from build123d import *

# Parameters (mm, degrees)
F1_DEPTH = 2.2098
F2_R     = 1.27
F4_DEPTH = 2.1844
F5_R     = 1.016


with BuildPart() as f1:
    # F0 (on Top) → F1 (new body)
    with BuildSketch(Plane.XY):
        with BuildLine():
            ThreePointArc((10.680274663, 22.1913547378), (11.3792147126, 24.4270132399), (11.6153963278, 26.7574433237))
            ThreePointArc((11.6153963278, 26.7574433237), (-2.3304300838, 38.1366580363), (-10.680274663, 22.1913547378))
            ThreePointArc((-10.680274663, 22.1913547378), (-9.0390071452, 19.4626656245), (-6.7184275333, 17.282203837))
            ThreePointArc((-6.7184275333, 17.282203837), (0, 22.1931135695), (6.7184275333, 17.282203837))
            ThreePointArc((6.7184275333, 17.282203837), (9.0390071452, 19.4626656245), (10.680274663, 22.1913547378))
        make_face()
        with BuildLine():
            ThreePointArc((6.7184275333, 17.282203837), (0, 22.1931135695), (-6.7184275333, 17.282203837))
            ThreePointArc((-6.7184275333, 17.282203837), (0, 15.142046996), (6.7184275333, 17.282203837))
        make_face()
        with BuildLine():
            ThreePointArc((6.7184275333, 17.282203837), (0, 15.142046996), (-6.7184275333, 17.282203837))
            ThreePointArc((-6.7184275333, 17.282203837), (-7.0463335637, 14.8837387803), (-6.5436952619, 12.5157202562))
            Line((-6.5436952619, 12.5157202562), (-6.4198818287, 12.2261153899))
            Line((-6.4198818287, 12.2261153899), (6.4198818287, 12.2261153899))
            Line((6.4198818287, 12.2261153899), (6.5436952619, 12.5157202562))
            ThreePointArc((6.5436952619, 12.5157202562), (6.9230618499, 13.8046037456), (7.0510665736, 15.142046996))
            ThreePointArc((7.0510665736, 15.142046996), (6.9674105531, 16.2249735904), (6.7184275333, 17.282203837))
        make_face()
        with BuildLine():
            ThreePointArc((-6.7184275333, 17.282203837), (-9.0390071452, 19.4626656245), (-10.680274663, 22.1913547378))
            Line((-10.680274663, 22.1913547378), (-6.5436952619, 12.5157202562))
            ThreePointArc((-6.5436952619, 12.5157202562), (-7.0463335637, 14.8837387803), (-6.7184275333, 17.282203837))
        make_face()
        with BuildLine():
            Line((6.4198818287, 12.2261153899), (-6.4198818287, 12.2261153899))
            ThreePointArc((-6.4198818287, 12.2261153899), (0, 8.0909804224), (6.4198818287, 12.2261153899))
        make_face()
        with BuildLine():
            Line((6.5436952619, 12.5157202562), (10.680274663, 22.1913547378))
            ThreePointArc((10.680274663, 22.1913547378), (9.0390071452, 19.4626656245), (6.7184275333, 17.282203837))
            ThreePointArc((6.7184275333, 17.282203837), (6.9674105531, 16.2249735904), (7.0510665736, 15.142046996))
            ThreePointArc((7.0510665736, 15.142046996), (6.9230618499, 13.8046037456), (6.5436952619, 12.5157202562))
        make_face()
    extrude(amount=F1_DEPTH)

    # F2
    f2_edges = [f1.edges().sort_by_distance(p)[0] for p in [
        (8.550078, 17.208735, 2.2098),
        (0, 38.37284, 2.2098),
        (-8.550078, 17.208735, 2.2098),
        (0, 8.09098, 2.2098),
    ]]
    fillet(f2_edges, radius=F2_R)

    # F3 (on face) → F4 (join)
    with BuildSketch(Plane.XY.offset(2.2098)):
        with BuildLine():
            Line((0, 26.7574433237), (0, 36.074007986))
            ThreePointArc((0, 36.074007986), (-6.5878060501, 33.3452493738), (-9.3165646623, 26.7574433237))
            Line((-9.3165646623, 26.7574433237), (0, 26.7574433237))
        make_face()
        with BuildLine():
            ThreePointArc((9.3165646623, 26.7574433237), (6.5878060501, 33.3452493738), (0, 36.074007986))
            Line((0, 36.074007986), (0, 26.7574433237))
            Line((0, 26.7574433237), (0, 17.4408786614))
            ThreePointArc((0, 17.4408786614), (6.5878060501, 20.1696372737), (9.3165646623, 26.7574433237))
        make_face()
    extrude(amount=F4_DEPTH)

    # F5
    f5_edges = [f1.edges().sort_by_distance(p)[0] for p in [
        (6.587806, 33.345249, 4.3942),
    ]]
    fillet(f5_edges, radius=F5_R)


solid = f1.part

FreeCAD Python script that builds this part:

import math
import FreeCAD as App
import Part
import Sketcher
from FreeCAD import Vector
Q = App.Units.Quantity


def edges_at(feature, points):
    """Names of the edges that pass closest to the given points."""
    edges = feature.Shape.Edges
    near = lambda p: min(range(len(edges)), key=lambda i: edges[i].distToShape(Part.Vertex(*p))[0])
    return sorted({f"Edge{near(p) + 1}" for p in points})

doc = App.newDocument("Part")
body = doc.addObject("PartDesign::Body", "Body")

sketch1 = body.newObject("Sketcher::SketchObject", "Sketch")
sketch1.AttachmentSupport = (doc.getObject("XY_Plane"), [""])
sketch1.MapMode = "FlatFace"
sketch1.addGeometry([
    Part.ArcOfCircle(Part.Circle(Vector(0, 26.757443, 0), Vector(0, 0, 1), 11.615396), math.radians(-23.147938), math.radians(0)),
    Part.ArcOfCircle(Part.Circle(Vector(0, 26.757443, 0), Vector(0, 0, 1), 11.615396), math.radians(0), math.radians(203.147938)),
    Part.LineSegment(Vector(-10.680275, 22.191355, 0), Vector(-6.543695, 12.51572, 0)),
    Part.LineSegment(Vector(-6.543695, 12.51572, 0), Vector(-6.419882, 12.226115, 0)),
    Part.ArcOfCircle(Part.Circle(Vector(0, 15.142047, 0), Vector(0, 0, 1), 7.051067), math.radians(-155.572294), math.radians(-24.427706)),
    Part.LineSegment(Vector(6.419882, 12.226115, 0), Vector(6.543695, 12.51572, 0)),
    Part.LineSegment(Vector(6.543695, 12.51572, 0), Vector(10.680275, 22.191355, 0)),
], False)
sketch1.addConstraint([
    Sketcher.Constraint("Coincident", 0, 2, 1, 1),
    Sketcher.Constraint("Coincident", 1, 2, 2, 1),
    Sketcher.Constraint("Coincident", 2, 2, 3, 1),
    Sketcher.Constraint("Coincident", 3, 2, 4, 1),
    Sketcher.Constraint("Coincident", 4, 2, 5, 1),
    Sketcher.Constraint("Coincident", 5, 2, 6, 1),
    Sketcher.Constraint("Coincident", 6, 2, 0, 1),
    Sketcher.Constraint("Coincident", 1, 3, 0, 3),
    Sketcher.Constraint("PointOnObject", 0, 3, -2),
    Sketcher.Constraint("PointOnObject", 4, 3, -2),
    Sketcher.Constraint("Distance", 3, Q("0.0124001 in")),
    Sketcher.Constraint("Distance", 5, Q("0.0124001 in")),
    Sketcher.Constraint("Radius", 0, Q("11.615396 mm")),
    Sketcher.Constraint("Radius", 4, Q("7.051067 mm")),
    Sketcher.Constraint("DistanceX", 5, 2, 0, 2, Q("5.071701 mm")),
    Sketcher.Constraint("DistanceY", -1, 1, 2, 2, Q("12.51572 mm")),
    Sketcher.Constraint("DistanceX", 3, 2, -1, 1, Q("6.419882 mm")),
    Sketcher.Constraint("DistanceX", -1, 1, 4, 2, Q("6.419882 mm")),
    Sketcher.Constraint("DistanceY", -1, 1, 5, 2, Q("12.51572 mm")),
    Sketcher.Constraint("DistanceY", 1, 2, 0, 3, Q("4.566089 mm")),
    Sketcher.Constraint("DistanceY", 1, 2, 0, 2, Q("4.566089 mm")),
    Sketcher.Constraint("DistanceY", 3, 2, 1, 2, Q("9.965239 mm")),
    Sketcher.Constraint("DistanceX", 6, 2, 0, 2, Q("0.935122 mm")),
])
pad1 = body.newObject("PartDesign::Pad", "Pad")
pad1.Profile = sketch1
pad1.Length = Q("0.087 in")
doc.recompute()

fillet = body.newObject("PartDesign::Fillet", "Fillet")
fillet.Base = (pad1, edges_at(pad1, [
    (8.612, 17.354, 2.21),
    (-2.33, 38.137, 2.21),
    (-8.612, 17.354, 2.21),
    (0, 8.091, 2.21),
]))
fillet.Radius = Q("0.05 in")

sketch2 = body.newObject("Sketcher::SketchObject", "Sketch001")
sketch2.AttachmentSupport = (doc.getObject("XY_Plane"), [""])
sketch2.MapMode = "FlatFace"
sketch2.AttachmentOffset = App.Placement(Vector(0, 0, 0.087 * 25.4), App.Rotation())
sketch2.addGeometry([
    Part.LineSegment(Vector(-9, 27, 0), Vector(0, 27, 0)),
    Part.LineSegment(Vector(0, 27, 0), Vector(0, 17, 0)),
    Part.ArcOfCircle(Part.Circle(Vector(0, 27, 0), Vector(0, 0, 1), 9), math.radians(-90), math.radians(180)),
], False)
sketch2.addConstraint([
    Sketcher.Constraint("Coincident", 0, 2, 1, 1),
    Sketcher.Constraint("Coincident", 1, 2, 2, 1),
    Sketcher.Constraint("Coincident", 2, 2, 0, 1),
    Sketcher.Constraint("Horizontal", 0),
    Sketcher.Constraint("Vertical", 1),
    Sketcher.Constraint("Coincident", 0, 2, 2, 3),
    Sketcher.Constraint("PointOnObject", 2, 3, -2),
    Sketcher.Constraint("Radius", 2, Q("9.316565 mm")),
    Sketcher.Constraint("DistanceY", -1, 1, 1, 2, Q("17.440879 mm")),
])
pad2 = body.newObject("PartDesign::Pad", "Pad001")
pad2.Profile = sketch2
pad2.Length = Q("0.086 in")
doc.recompute()

fillet2 = body.newObject("PartDesign::Fillet", "Fillet001")
fillet2.Base = (pad2, edges_at(pad2, [(6.588, 33.345, 4.394)]))
fillet2.Radius = Q("0.04 in")

doc.recompute()
